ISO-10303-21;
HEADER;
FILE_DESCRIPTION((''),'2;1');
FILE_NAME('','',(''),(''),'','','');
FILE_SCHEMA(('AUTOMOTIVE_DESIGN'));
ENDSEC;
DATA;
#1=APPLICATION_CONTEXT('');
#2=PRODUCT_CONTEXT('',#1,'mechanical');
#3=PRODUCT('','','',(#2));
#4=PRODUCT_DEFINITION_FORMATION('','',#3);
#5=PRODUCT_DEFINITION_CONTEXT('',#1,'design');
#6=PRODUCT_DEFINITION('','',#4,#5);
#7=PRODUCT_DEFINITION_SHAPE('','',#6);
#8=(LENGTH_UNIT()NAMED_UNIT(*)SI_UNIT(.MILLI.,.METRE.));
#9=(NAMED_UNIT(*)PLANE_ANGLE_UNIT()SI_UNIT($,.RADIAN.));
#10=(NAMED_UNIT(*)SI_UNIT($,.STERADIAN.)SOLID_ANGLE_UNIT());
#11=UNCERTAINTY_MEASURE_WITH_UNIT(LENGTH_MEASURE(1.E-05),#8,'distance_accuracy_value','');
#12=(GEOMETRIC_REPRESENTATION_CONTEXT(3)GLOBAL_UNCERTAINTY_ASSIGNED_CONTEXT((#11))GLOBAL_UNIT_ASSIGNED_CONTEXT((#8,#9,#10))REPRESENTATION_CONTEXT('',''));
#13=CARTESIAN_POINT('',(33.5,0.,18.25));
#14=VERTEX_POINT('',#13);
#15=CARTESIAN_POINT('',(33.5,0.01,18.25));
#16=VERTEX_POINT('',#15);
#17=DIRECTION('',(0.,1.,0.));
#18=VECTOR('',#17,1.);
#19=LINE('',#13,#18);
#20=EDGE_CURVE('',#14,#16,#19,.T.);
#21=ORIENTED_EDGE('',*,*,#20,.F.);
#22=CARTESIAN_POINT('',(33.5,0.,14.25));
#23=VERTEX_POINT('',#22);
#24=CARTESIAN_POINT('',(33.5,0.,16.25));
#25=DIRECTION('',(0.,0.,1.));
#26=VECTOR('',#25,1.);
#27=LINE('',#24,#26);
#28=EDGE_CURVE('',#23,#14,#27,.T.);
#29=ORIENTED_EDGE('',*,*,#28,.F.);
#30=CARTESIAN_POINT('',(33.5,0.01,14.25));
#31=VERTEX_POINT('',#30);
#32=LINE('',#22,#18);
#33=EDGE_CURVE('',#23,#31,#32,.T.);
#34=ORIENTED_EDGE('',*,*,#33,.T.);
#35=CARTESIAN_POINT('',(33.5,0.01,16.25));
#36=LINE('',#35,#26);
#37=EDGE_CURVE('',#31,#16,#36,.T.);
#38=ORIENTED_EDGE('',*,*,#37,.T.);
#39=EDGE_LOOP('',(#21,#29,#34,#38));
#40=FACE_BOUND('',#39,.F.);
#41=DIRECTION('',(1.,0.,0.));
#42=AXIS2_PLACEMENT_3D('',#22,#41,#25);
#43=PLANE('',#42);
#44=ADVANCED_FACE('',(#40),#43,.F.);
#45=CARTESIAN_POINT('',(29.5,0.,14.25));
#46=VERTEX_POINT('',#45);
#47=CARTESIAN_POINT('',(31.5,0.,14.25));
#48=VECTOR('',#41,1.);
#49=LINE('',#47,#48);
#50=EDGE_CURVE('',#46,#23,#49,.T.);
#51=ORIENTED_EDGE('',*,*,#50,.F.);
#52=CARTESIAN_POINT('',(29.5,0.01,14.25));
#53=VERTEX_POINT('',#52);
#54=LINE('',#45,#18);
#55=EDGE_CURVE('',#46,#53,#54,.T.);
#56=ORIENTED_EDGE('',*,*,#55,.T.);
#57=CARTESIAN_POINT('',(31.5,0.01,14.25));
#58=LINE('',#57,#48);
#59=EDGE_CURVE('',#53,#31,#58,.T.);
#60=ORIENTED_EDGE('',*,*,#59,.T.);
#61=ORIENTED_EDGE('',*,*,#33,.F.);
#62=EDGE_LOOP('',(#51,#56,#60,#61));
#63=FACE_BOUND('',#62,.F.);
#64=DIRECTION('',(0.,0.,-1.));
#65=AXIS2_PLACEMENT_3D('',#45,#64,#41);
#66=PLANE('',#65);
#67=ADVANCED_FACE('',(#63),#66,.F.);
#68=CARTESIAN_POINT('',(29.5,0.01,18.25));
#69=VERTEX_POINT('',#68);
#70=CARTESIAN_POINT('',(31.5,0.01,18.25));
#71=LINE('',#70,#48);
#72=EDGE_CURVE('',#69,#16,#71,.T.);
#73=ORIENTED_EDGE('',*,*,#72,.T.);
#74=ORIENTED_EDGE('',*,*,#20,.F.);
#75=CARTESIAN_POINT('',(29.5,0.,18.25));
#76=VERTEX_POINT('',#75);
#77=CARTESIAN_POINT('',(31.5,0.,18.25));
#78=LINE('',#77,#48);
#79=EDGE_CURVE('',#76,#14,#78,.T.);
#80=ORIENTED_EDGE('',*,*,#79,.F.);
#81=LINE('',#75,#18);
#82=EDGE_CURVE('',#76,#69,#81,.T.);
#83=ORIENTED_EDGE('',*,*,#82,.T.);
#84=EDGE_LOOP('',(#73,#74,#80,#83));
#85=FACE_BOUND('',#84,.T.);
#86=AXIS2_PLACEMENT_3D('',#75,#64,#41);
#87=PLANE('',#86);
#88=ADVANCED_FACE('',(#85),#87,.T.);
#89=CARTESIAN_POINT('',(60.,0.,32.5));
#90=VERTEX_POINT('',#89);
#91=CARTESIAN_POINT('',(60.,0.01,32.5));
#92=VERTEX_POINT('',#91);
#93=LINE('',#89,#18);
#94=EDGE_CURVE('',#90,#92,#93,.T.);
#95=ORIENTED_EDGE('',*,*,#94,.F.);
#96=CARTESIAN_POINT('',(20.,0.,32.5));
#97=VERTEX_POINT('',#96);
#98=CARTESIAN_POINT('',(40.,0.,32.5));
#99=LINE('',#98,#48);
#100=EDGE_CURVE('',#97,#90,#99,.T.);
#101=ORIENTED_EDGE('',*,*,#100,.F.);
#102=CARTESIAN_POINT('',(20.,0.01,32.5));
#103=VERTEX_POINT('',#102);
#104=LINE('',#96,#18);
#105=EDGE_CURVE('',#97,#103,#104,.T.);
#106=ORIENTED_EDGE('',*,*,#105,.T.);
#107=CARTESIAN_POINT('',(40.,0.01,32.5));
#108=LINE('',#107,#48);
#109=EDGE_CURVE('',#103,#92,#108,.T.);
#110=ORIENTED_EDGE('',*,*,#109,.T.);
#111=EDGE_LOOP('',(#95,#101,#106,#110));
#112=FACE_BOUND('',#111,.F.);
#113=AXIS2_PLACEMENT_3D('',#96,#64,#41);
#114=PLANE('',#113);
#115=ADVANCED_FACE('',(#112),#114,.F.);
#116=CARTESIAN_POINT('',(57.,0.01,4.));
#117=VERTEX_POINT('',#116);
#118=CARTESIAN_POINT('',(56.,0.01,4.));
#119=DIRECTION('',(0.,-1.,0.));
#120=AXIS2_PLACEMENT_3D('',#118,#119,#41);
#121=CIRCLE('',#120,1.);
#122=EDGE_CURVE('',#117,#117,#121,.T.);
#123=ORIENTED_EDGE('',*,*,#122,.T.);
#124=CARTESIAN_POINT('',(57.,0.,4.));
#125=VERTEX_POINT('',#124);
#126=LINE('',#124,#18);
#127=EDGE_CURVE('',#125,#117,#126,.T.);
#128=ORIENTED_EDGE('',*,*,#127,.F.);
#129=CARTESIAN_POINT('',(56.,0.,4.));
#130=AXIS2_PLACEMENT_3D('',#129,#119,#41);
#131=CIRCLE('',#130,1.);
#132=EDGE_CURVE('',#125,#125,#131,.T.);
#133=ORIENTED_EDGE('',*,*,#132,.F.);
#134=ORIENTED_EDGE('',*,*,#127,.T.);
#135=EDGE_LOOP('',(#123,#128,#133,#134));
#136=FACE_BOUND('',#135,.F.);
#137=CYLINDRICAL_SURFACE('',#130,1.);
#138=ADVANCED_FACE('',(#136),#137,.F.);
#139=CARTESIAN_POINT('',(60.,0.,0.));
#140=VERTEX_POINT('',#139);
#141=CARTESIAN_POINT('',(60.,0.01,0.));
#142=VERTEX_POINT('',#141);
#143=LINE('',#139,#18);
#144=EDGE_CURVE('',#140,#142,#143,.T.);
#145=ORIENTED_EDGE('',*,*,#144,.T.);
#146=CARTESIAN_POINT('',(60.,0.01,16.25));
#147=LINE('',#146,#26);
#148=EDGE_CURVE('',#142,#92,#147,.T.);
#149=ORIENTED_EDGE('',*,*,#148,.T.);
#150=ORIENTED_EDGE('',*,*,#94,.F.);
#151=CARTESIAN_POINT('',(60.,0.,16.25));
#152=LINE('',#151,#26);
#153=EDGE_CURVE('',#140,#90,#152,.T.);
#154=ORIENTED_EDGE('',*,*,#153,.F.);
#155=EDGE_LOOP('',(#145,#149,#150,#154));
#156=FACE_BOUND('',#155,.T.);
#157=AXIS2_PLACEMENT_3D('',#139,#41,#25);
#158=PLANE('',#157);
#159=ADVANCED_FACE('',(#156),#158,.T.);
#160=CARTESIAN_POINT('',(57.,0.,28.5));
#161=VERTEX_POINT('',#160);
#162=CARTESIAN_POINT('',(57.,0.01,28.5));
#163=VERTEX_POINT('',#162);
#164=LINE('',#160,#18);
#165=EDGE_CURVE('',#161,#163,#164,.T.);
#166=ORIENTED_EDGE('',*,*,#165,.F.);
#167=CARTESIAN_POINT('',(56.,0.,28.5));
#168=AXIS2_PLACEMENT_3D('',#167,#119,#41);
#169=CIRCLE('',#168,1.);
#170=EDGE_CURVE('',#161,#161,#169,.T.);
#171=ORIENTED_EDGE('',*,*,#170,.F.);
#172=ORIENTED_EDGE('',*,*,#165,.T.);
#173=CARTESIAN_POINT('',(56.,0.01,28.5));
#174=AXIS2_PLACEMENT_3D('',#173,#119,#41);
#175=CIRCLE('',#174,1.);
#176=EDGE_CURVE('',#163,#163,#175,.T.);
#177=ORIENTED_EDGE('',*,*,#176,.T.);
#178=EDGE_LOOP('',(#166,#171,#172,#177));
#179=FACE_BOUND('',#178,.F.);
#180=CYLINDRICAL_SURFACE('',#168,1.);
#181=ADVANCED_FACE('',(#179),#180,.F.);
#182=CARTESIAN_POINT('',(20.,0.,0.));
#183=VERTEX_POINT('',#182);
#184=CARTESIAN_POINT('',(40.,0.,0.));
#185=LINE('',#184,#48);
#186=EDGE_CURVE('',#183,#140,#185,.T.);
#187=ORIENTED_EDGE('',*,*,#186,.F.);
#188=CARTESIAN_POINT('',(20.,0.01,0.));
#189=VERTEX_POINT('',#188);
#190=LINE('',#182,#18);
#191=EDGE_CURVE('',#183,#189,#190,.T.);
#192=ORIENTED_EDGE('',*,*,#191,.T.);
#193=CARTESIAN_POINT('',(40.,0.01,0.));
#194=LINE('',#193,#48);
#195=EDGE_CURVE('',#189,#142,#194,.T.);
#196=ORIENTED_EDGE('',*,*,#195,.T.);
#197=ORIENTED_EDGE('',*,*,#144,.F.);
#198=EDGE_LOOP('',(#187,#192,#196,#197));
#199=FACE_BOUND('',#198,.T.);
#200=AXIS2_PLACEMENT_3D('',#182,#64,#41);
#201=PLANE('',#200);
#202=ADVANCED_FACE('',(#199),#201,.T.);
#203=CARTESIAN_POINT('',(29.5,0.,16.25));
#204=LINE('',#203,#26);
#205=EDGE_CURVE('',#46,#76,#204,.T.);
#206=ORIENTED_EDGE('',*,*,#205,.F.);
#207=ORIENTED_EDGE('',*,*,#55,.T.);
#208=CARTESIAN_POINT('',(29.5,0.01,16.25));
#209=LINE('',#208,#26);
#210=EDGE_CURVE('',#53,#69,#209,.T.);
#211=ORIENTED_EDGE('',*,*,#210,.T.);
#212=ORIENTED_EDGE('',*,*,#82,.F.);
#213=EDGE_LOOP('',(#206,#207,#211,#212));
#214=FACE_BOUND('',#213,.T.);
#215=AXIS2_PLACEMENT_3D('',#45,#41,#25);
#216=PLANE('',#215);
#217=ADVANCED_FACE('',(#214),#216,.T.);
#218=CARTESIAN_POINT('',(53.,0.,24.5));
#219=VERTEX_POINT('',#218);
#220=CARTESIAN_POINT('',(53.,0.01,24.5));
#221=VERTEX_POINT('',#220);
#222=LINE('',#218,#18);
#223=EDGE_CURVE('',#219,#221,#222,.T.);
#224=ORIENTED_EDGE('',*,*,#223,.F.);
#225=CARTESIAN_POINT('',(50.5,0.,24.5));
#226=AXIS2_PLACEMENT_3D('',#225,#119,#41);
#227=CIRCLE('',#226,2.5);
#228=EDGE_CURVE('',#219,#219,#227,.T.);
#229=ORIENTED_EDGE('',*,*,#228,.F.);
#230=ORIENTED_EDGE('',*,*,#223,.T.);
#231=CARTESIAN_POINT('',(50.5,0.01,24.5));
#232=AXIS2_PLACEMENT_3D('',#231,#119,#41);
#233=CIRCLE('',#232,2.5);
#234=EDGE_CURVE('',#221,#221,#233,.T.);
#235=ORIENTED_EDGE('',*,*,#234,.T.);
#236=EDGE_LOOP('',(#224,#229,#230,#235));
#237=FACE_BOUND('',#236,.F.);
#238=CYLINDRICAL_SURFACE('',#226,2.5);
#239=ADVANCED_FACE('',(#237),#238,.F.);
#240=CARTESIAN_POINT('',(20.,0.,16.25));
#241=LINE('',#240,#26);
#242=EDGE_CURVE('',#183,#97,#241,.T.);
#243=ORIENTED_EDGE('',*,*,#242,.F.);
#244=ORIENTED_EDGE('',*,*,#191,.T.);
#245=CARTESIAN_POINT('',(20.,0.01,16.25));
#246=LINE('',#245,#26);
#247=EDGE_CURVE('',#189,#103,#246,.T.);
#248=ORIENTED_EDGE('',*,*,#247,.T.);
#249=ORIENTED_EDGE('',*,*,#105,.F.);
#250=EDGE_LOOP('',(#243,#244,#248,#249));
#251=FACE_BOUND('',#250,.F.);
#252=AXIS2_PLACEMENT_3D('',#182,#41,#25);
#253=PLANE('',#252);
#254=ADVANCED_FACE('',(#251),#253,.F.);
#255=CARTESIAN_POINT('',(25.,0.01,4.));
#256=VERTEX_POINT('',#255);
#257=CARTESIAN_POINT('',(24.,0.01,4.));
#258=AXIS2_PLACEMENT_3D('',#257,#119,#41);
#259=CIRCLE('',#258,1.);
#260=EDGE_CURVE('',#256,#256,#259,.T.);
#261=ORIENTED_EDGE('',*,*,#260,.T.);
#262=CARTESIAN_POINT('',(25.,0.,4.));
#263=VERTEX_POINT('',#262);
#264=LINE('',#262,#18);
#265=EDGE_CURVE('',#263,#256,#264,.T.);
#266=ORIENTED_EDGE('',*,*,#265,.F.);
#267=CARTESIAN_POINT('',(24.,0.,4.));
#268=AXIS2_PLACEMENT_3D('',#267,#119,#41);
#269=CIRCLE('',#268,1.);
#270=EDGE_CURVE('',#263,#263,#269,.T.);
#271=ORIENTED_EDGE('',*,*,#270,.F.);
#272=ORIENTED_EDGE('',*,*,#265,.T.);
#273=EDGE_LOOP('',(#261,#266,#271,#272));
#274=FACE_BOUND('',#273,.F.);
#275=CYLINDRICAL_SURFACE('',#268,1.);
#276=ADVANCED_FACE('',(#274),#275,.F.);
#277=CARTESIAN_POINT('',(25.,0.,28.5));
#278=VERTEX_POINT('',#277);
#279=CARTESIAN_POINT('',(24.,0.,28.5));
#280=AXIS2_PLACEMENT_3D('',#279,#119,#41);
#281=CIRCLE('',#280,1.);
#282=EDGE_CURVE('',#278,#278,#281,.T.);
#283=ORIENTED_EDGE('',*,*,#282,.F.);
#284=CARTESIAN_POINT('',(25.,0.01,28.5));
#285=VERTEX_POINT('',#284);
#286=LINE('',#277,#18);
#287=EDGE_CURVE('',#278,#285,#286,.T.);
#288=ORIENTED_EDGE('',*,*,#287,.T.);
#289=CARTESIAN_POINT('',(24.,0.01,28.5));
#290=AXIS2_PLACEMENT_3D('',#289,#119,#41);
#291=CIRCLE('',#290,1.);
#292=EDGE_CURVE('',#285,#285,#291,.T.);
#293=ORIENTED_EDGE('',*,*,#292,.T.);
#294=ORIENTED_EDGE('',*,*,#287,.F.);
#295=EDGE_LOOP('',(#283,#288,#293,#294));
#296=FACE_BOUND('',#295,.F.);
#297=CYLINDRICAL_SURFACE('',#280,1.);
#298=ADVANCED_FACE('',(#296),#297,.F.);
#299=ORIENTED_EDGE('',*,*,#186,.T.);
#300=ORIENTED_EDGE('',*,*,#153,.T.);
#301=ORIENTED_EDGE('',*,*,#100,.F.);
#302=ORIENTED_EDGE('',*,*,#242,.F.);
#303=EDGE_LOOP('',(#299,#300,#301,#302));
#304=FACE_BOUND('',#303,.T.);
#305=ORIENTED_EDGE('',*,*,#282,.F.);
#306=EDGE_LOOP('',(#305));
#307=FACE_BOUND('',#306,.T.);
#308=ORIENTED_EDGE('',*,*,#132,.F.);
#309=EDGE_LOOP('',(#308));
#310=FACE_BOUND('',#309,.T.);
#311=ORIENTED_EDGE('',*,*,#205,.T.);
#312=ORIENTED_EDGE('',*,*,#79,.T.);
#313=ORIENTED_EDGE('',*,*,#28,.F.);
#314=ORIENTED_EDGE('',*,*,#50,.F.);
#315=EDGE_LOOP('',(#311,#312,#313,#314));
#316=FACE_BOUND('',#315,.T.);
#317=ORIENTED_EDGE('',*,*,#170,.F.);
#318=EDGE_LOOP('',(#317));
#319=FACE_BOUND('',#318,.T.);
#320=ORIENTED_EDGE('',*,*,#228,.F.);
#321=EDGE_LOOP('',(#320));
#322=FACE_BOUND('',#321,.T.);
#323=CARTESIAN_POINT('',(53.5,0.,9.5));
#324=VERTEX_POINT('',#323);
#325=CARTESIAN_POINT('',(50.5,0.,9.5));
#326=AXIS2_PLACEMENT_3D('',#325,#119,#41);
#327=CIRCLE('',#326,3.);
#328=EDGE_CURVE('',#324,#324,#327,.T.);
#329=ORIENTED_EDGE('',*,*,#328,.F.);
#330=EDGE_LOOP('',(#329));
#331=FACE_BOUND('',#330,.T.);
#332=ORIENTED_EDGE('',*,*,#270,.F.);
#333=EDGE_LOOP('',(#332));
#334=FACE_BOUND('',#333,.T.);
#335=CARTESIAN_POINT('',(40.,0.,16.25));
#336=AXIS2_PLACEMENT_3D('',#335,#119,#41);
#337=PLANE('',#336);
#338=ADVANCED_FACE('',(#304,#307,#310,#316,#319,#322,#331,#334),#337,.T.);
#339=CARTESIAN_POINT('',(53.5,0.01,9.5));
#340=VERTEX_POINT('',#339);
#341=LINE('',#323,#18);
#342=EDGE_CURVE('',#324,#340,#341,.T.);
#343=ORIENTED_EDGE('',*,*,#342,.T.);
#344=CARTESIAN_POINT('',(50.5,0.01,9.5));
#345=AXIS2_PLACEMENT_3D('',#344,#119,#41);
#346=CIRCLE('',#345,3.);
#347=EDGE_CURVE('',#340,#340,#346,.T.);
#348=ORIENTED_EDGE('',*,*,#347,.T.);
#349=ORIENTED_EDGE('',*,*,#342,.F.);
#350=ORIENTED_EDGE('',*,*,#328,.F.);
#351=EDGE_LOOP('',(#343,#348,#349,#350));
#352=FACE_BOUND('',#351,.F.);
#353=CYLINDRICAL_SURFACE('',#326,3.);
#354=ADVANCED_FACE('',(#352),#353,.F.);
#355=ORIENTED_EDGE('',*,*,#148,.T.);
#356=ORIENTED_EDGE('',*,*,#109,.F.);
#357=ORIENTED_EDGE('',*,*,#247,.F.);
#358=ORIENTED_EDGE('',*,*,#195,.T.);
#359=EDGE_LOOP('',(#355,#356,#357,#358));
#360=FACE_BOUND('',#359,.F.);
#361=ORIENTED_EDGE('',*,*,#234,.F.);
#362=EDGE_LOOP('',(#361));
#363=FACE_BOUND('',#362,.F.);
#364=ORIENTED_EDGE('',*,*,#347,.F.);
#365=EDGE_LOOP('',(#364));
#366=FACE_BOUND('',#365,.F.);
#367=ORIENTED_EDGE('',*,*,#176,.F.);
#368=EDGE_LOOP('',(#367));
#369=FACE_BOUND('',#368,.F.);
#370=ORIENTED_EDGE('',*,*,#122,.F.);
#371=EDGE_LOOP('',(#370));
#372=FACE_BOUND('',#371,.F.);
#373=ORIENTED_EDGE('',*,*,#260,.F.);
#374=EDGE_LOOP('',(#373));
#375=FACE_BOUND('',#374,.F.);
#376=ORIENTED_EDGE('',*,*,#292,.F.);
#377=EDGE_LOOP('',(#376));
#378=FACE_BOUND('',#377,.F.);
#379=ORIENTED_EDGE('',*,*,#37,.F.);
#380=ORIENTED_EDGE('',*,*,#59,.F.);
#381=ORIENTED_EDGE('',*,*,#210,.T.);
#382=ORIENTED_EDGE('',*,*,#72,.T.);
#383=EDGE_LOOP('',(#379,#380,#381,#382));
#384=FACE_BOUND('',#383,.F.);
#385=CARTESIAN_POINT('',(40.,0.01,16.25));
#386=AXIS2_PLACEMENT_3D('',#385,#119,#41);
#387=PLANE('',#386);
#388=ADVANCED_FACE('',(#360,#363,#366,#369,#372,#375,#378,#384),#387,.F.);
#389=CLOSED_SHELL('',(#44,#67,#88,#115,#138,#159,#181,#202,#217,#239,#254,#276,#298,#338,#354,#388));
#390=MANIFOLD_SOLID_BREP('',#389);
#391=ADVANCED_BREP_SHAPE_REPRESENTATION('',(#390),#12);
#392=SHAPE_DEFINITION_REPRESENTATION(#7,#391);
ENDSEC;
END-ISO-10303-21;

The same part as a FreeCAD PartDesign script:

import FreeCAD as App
import Part
import Sketcher


def add_polygon(sketch, points):
    """Adds a closed chain of lines whose ends are joined by coincident constraints."""
    first, n = sketch.GeometryCount, len(points)
    for a, b in zip(points, points[1:] + points[:1]):
        sketch.addGeometry(Part.LineSegment(App.Vector(*a, 0), App.Vector(*b, 0)), False)
    for i in range(n):
        sketch.addConstraint(Sketcher.Constraint("Coincident", first + i, 2, first + (i + 1) % n, 1))

doc = App.newDocument("Part")
body = doc.addObject("PartDesign::Body", "Body")

# Sketch on XZ plane
sketch1 = doc.addObject("Sketcher::SketchObject", "Sketch")
body.addObject(sketch1)
sketch1.AttachmentSupport = (doc.XZ_Plane, [""])
sketch1.MapMode = "FlatFace"
add_polygon(sketch1, [(20, 32.5), (20, 0), (60, 0), (60, 32.5)])  # lines 0-3
sketch1.addGeometry(Part.Circle(App.Vector(24, 4, 0), App.Vector(0, 0, 1), 1), False)  # 4
sketch1.addGeometry(Part.Circle(App.Vector(56, 4, 0), App.Vector(0, 0, 1), 1), False)  # 5
sketch1.addGeometry(Part.Circle(App.Vector(50.5, 9.5, 0), App.Vector(0, 0, 1), 3), False)  # 6
add_polygon(sketch1, [(33.5, 14.25), (29.5, 14.25), (29.5, 18.25), (33.5, 18.25)])  # lines 7-10
sketch1.addGeometry(Part.Circle(App.Vector(24, 28.5, 0), App.Vector(0, 0, 1), 1), False)  # 11
sketch1.addGeometry(Part.Circle(App.Vector(50.5, 24.5, 0), App.Vector(0, 0, 1), 2.5), False)  # 12
sketch1.addGeometry(Part.Circle(App.Vector(56, 28.5, 0), App.Vector(0, 0, 1), 1), False)  # 13
sketch1.addConstraint([
    Sketcher.Constraint("Vertical", 0),
    Sketcher.Constraint("Horizontal", 1),
    Sketcher.Constraint("Vertical", 2),
    Sketcher.Constraint("Horizontal", 3),
    Sketcher.Constraint("Horizontal", 7),
    Sketcher.Constraint("Vertical", 8),
    Sketcher.Constraint("Horizontal", 9),
    Sketcher.Constraint("Vertical", 10),
    Sketcher.Constraint("Equal", 4, 5),
    Sketcher.Constraint("Equal", 5, 11),
    Sketcher.Constraint("Equal", 11, 13),
    Sketcher.Constraint("PointOnObject", 0, 2, -1),
    Sketcher.Constraint("Horizontal", 4, 3, 5, 3),
    Sketcher.Constraint("Horizontal", 11, 3, 13, 3),
    Sketcher.Constraint("Vertical", 4, 3, 11, 3),
    Sketcher.Constraint("Vertical", 6, 3, 12, 3),
    Sketcher.Constraint("Vertical", 5, 3, 13, 3),
    Sketcher.Constraint("Equal", 9, 8),
    Sketcher.Constraint("Diameter", 4, 2.0),
    Sketcher.Constraint("Diameter", 6, 6.0),
    Sketcher.Constraint("Diameter", 12, 5.0),
    Sketcher.Constraint("DistanceX", 1, 1, 1, 2, 40.0),
    Sketcher.Constraint("DistanceX", 7, 2, 7, 1, 4.0),
    Sketcher.Constraint("DistanceY", 0, 2, 0, 1, 32.5),
    Sketcher.Constraint("DistanceX", -1, 1, 4, 3, 24.0),
    Sketcher.Constraint("DistanceY", -1, 1, 4, 3, 4.0),
    Sketcher.Constraint("DistanceX", -1, 1, 5, 3, 56.0),
    Sketcher.Constraint("DistanceX", -1, 1, 0, 2, 20.0),
    Sketcher.Constraint("DistanceY", 6, 3, 11, 3, 19.0),
    Sketcher.Constraint("DistanceY", 6, 3, 12, 3, 15.0),
    Sketcher.Constraint("DistanceY", 13, 3, 2, 2, 4.0),
    Sketcher.Constraint("DistanceX", 7, 2, 6, 3, 21.0),
    Sketcher.Constraint("DistanceX", -1, 1, 6, 3, 50.5),
    Sketcher.Constraint("DistanceY", -1, 1, 7, 2, 14.25),
])
pad1 = doc.addObject("PartDesign::Pad", "Pad")
body.addObject(pad1)
pad1.Profile = sketch1
pad1.Length = 0.01
pad1.Reversed = True

doc.recompute()
